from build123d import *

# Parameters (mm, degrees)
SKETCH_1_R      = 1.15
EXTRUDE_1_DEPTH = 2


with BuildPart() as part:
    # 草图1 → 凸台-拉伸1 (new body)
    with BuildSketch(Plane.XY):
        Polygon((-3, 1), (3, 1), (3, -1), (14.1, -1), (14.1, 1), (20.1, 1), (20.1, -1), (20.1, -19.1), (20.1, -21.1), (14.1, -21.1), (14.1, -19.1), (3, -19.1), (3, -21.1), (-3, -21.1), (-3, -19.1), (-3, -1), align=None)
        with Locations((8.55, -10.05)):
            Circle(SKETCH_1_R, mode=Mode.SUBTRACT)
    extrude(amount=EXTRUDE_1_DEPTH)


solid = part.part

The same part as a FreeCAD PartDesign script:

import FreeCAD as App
import Part
import Sketcher

V = App.Vector
Q = App.Units.Quantity


def add_polygon(sketch, points):
    """Adds a closed chain of lines whose ends are joined by coincident constraints."""
    first, n = sketch.GeometryCount, len(points)
    for a, b in zip(points, points[1:] + points[:1]):
        sketch.addGeometry(Part.LineSegment(App.Vector(*a, 0), App.Vector(*b, 0)), False)
    for i in range(n):
        sketch.addConstraint(Sketcher.Constraint("Coincident", first + i, 2, first + (i + 1) % n, 1))

doc = App.newDocument("Part")
body = doc.addObject("PartDesign::Body", "Body")

# Sketch on XY plane
sketch1 = body.newObject("Sketcher::SketchObject", "Sketch")
sketch1.AttachmentSupport = (doc.getObject("XY_Plane"), [""])
sketch1.MapMode = "FlatFace"
add_polygon(sketch1, [(3, 1), (-3, 1), (-3, -21.1), (3, -21.1), (3, -19.1), (14.1, -19.1), (14.1, -21.1), (20.1, -21.1), (20.1, 1), (14.1, 1), (14.1, -1), (3, -1)])  # lines 0-11
sketch1.addGeometry(Part.Circle(V(8.55, -10.05, 0), V(0, 0, 1), 1.15), False)  # 12
sketch1.addConstraint(Sketcher.Constraint("Horizontal", 0))
sketch1.addConstraint(Sketcher.Constraint("Vertical", 1))
sketch1.addConstraint(Sketcher.Constraint("Horizontal", 2))
sketch1.addConstraint(Sketcher.Constraint("Vertical", 3))
sketch1.addConstraint(Sketcher.Constraint("Horizontal", 4))
sketch1.addConstraint(Sketcher.Constraint("Vertical", 5))
sketch1.addConstraint(Sketcher.Constraint("Horizontal", 6))
sketch1.addConstraint(Sketcher.Constraint("Vertical", 7))
sketch1.addConstraint(Sketcher.Constraint("Horizontal", 8))
sketch1.addConstraint(Sketcher.Constraint("Vertical", 9))
sketch1.addConstraint(Sketcher.Constraint("Horizontal", 10))
sketch1.addConstraint(Sketcher.Constraint("Vertical", 11))
sketch1.addConstraint(Sketcher.Constraint("Symmetric", 0, 2, 10, 2, -1, 1))
sketch1.addConstraint(Sketcher.Constraint("Horizontal", 2, 2, 5, 2))
sketch1.addConstraint(Sketcher.Constraint("Horizontal", 0, 2, 7, 2))
sketch1.addConstraint(Sketcher.Constraint("Vertical", 5, 2, 8, 2))
sketch1.addConstraint(Sketcher.Constraint("Vertical", 3, 2, 10, 2))
sketch1.addConstraint(Sketcher.Constraint("Equal", 2, 6))
sketch1.addConstraint(Sketcher.Constraint("Equal", 5, 9))
sketch1.addConstraint(Sketcher.Constraint("Diameter", 12, Q("2.3 mm")))
sketch1.addConstraint(Sketcher.Constraint("DistanceX", 0, 2, 0, 1, Q("6 mm")))
sketch1.addConstraint(Sketcher.Constraint("DistanceY", 3, 1, 3, 2, Q("2 mm")))
sketch1.addConstraint(Sketcher.Constraint("DistanceX", 4, 1, 4, 2, Q("11.1 mm")))
sketch1.addConstraint(Sketcher.Constraint("DistanceY", 1, 2, 1, 1, Q("22.1 mm")))
sketch1.addConstraint(Sketcher.Constraint("DistanceX", -1, 1, 12, 3, Q("8.55 mm")))
sketch1.addConstraint(Sketcher.Constraint("DistanceY", 12, 3, -1, 1, Q("10.05 mm")))
pad1 = body.newObject("PartDesign::Pad", "Pad")
pad1.Profile = sketch1
pad1.Length = 2

doc.recompute()
